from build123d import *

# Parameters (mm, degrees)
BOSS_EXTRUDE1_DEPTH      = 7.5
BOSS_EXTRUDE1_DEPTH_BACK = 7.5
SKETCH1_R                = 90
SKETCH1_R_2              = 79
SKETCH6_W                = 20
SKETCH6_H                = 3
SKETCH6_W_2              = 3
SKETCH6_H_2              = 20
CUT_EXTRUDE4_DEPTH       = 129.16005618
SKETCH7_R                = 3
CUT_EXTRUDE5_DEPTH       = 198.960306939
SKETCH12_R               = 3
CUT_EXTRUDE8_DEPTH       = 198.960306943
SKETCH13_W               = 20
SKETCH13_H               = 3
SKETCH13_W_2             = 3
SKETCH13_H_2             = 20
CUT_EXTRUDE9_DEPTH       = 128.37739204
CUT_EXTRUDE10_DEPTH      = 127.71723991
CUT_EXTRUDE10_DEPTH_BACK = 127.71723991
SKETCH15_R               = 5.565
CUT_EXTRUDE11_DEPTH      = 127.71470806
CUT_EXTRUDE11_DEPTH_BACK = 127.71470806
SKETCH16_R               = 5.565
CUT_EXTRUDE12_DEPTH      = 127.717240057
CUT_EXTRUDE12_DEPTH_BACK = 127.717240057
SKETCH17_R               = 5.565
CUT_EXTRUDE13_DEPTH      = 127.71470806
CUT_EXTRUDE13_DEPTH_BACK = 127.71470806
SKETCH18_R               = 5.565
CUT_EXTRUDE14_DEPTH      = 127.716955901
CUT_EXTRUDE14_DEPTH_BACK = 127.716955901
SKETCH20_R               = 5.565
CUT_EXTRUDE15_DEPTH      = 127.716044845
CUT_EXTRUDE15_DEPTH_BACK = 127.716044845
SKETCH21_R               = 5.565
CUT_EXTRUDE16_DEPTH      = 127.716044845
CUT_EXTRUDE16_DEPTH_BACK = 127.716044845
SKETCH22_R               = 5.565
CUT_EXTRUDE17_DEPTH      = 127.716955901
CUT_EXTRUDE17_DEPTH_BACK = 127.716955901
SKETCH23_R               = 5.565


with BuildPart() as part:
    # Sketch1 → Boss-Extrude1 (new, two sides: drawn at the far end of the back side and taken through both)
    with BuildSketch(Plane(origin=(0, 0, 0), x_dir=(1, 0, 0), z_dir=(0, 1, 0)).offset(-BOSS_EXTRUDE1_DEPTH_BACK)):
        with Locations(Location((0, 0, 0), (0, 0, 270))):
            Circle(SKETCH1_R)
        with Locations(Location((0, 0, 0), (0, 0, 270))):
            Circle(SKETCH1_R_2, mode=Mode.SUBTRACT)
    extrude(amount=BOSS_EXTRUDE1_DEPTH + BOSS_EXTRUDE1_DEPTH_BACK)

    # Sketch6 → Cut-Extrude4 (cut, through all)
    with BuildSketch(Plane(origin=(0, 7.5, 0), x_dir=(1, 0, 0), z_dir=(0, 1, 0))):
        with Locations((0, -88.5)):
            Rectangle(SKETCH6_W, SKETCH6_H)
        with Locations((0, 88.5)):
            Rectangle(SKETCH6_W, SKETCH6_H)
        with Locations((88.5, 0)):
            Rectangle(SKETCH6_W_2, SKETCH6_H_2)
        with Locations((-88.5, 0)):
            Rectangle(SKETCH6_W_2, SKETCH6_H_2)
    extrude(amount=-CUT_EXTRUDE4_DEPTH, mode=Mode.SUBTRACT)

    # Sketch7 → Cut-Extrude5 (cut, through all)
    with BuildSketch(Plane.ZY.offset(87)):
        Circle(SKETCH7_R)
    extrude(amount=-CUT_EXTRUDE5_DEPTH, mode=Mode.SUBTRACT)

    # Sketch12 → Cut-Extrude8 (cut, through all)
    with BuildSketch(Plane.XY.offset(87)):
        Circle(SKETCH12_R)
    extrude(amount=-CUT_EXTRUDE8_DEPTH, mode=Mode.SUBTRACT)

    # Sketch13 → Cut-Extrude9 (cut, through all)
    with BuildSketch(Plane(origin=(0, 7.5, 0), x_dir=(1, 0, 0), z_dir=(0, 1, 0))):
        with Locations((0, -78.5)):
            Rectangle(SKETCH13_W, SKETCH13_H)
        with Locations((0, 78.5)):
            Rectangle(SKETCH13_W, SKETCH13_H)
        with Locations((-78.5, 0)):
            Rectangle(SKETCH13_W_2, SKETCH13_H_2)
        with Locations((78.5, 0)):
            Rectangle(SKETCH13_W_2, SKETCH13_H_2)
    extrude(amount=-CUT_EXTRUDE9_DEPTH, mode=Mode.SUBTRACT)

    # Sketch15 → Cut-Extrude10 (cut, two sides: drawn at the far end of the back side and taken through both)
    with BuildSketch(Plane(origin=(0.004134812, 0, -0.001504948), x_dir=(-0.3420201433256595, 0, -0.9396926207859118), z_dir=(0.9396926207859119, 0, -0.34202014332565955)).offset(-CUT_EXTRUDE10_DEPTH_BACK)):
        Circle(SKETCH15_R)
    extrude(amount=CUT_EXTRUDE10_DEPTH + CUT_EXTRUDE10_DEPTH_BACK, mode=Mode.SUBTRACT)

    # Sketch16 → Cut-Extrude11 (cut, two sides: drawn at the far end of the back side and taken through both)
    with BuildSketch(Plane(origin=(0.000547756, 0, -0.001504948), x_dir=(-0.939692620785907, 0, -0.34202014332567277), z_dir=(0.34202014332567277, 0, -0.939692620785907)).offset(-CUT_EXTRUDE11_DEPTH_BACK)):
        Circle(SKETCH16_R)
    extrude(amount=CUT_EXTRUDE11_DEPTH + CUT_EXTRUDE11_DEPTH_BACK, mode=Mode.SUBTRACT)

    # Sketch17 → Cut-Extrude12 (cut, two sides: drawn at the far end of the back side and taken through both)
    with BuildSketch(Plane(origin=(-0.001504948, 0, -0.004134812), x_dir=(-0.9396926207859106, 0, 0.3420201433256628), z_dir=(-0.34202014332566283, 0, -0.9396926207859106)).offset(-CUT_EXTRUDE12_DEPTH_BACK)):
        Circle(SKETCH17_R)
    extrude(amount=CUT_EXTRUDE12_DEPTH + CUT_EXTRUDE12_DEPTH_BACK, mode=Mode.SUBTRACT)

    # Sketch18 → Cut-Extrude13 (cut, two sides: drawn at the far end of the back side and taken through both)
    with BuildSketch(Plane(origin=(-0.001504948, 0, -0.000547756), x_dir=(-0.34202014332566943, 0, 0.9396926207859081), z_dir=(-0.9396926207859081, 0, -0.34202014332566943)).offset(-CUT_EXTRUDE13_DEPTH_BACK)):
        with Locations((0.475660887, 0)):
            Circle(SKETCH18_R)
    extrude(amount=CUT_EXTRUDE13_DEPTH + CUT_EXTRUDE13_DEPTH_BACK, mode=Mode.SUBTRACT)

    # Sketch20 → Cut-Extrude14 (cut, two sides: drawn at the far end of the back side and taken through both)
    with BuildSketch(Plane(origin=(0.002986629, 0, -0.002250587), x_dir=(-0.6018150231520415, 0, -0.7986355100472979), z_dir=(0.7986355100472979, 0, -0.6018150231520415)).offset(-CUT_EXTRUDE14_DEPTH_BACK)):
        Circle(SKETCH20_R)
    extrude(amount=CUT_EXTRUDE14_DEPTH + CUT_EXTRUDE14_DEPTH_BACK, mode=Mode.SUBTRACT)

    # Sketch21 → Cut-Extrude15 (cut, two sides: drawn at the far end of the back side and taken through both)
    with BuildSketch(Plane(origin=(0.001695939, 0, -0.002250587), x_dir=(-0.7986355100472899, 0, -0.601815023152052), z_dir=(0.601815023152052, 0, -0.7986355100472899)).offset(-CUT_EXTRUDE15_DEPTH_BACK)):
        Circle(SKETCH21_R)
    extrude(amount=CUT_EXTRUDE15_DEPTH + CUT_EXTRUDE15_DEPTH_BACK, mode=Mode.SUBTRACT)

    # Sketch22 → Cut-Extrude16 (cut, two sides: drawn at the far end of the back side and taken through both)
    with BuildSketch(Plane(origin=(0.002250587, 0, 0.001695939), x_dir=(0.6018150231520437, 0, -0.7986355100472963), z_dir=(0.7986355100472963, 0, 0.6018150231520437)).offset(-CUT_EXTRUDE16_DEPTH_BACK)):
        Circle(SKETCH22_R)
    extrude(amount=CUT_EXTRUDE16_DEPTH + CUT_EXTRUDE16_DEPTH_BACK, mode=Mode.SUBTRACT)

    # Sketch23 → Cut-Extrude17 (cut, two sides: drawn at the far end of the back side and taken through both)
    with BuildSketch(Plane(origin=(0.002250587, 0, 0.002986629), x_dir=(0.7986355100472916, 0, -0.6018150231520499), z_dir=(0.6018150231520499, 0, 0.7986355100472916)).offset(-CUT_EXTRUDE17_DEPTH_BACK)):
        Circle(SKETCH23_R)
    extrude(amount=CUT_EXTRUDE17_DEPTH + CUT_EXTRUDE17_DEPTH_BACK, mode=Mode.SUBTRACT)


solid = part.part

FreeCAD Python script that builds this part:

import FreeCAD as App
import Part
import Sketcher

V = App.Vector
Q = App.Units.Quantity

doc = App.newDocument("Part")
body = doc.addObject("PartDesign::Body", "Body")

# Sketch on XZ plane
sketch1 = doc.addObject("Sketcher::SketchObject", "Sketch")
body.addObject(sketch1)
sketch1.AttachmentSupport = (doc.XZ_Plane, [""])
sketch1.MapMode = "FlatFace"
sketch1.addGeometry(Part.Circle(V(0, 0, 0), V(0, 0, 1), 90), False)
sketch1.addGeometry(Part.Circle(V(0, 0, 0), V(0, 0, 1), 79), False)
sketch1.addConstraint(Sketcher.Constraint("Coincident", 0, 3, -1, 1))
sketch1.addConstraint(Sketcher.Constraint("Coincident", 1, 3, -1, 1))
sketch1.addConstraint(Sketcher.Constraint("Diameter", 0, Q("180 mm")))
sketch1.addConstraint(Sketcher.Constraint("Diameter", 1, Q("158 mm")))
pad1 = doc.addObject("PartDesign::Pad", "Pad")
body.addObject(pad1)
pad1.Profile = sketch1
pad1.Type = "TwoLengths"
pad1.Length = 7.5
pad1.Length2 = 7.5
pad1.Reversed = True

# Sketch on XZ plane
sketch2 = doc.addObject("Sketcher::SketchObject", "Sketch001")
body.addObject(sketch2)
sketch2.AttachmentSupport = (doc.XZ_Plane, [""])
sketch2.MapMode = "FlatFace"
sketch2.AttachmentOffset = App.Placement(V(0, 0, -7.5), App.Rotation())
sketch2.addGeometry(Part.LineSegment(V(-10, 87, 0), V(-10, 90, 0)), False)
sketch2.addGeometry(Part.LineSegment(V(-10, 90, 0), V(10, 90, 0)), False)
sketch2.addGeometry(Part.LineSegment(V(10, 90, 0), V(10, 87, 0)), False)
sketch2.addGeometry(Part.LineSegment(V(10, 87, 0), V(-10, 87, 0)), False)
sketch2.addGeometry(Part.LineSegment(V(-10, -90, 0), V(-10, -87, 0)), False)
sketch2.addGeometry(Part.LineSegment(V(-10, -87, 0), V(10, -87, 0)), False)
sketch2.addGeometry(Part.LineSegment(V(10, -87, 0), V(10, -90, 0)), False)
sketch2.addGeometry(Part.LineSegment(V(10, -90, 0), V(-10, -90, 0)), False)
sketch2.addGeometry(Part.LineSegment(V(87, -10, 0), V(87, 10, 0)), False)
sketch2.addGeometry(Part.LineSegment(V(87, 10, 0), V(90, 10, 0)), False)
sketch2.addGeometry(Part.LineSegment(V(90, 10, 0), V(90, -10, 0)), False)
sketch2.addGeometry(Part.LineSegment(V(90, -10, 0), V(87, -10, 0)), False)
sketch2.addGeometry(Part.LineSegment(V(-90, -10, 0), V(-90, 10, 0)), False)
sketch2.addGeometry(Part.LineSegment(V(-90, 10, 0), V(-87, 10, 0)), False)
sketch2.addGeometry(Part.LineSegment(V(-87, 10, 0), V(-87, -10, 0)), False)
sketch2.addGeometry(Part.LineSegment(V(-87, -10, 0), V(-90, -10, 0)), False)
sketch2.addConstraint(Sketcher.Constraint("Coincident", 0, 2, 1, 1))
sketch2.addConstraint(Sketcher.Constraint("Coincident", 1, 2, 2, 1))
sketch2.addConstraint(Sketcher.Constraint("Coincident", 2, 2, 3, 1))
sketch2.addConstraint(Sketcher.Constraint("Coincident", 3, 2, 0, 1))
sketch2.addConstraint(Sketcher.Constraint("Coincident", 4, 2, 5, 1))
sketch2.addConstraint(Sketcher.Constraint("Coincident", 5, 2, 6, 1))
sketch2.addConstraint(Sketcher.Constraint("Coincident", 6, 2, 7, 1))
sketch2.addConstraint(Sketcher.Constraint("Coincident", 7, 2, 4, 1))
sketch2.addConstraint(Sketcher.Constraint("Coincident", 8, 2, 9, 1))
sketch2.addConstraint(Sketcher.Constraint("Coincident", 9, 2, 10, 1))
sketch2.addConstraint(Sketcher.Constraint("Coincident", 10, 2, 11, 1))
sketch2.addConstraint(Sketcher.Constraint("Coincident", 11, 2, 8, 1))
sketch2.addConstraint(Sketcher.Constraint("Coincident", 12, 2, 13, 1))
sketch2.addConstraint(Sketcher.Constraint("Coincident", 13, 2, 14, 1))
sketch2.addConstraint(Sketcher.Constraint("Coincident", 14, 2, 15, 1))
sketch2.addConstraint(Sketcher.Constraint("Coincident", 15, 2, 12, 1))
sketch2.addConstraint(Sketcher.Constraint("Vertical", 0))
sketch2.addConstraint(Sketcher.Constraint("Horizontal", 1))
sketch2.addConstraint(Sketcher.Constraint("Vertical", 2))
sketch2.addConstraint(Sketcher.Constraint("Horizontal", 3))
sketch2.addConstraint(Sketcher.Constraint("Vertical", 4))
sketch2.addConstraint(Sketcher.Constraint("Horizontal", 5))
sketch2.addConstraint(Sketcher.Constraint("Vertical", 6))
sketch2.addConstraint(Sketcher.Constraint("Horizontal", 7))
sketch2.addConstraint(Sketcher.Constraint("Vertical", 8))
sketch2.addConstraint(Sketcher.Constraint("Horizontal", 9))
sketch2.addConstraint(Sketcher.Constraint("Vertical", 10))
sketch2.addConstraint(Sketcher.Constraint("Horizontal", 11))
sketch2.addConstraint(Sketcher.Constraint("Vertical", 12))
sketch2.addConstraint(Sketcher.Constraint("Horizontal", 13))
sketch2.addConstraint(Sketcher.Constraint("Vertical", 14))
sketch2.addConstraint(Sketcher.Constraint("Horizontal", 15))
sketch2.addConstraint(Sketcher.Constraint("Symmetric", 2, 2, 4, 2, -1, 1))
sketch2.addConstraint(Sketcher.Constraint("Symmetric", 0, 2, 6, 2, -1, 1))
sketch2.addConstraint(Sketcher.Constraint("Symmetric", 10, 2, 12, 2, -1, 1))
sketch2.addConstraint(Sketcher.Constraint("Symmetric", 8, 2, 14, 2, -1, 1))
sketch2.addConstraint(Sketcher.Constraint("Horizontal", 9, 2, 12, 2))
sketch2.addConstraint(Sketcher.Constraint("Vertical", 3, 2, 4, 2))
sketch2.addConstraint(Sketcher.Constraint("Equal", 15, 0))
sketch2.addConstraint(Sketcher.Constraint("Equal", 7, 8))
sketch2.addConstraint(Sketcher.Constraint("DistanceX", 1, 1, 1, 2, Q("20 mm")))
sketch2.addConstraint(Sketcher.Constraint("DistanceX", 9, 1, 9, 2, Q("3 mm")))
sketch2.addConstraint(Sketcher.Constraint("DistanceY", -1, 1, 0, 2, Q("90 mm")))
sketch2.addConstraint(Sketcher.Constraint("DistanceX", -1, 1, 8, 2, Q("87 mm")))
pocket1 = doc.addObject("PartDesign::Pocket", "Pocket")
body.addObject(pocket1)
pocket1.Profile = sketch2
pocket1.Type = "ThroughAll"
pocket1.Reversed = True

# Sketch on YZ plane
sketch3 = doc.addObject("Sketcher::SketchObject", "Sketch002")
body.addObject(sketch3)
sketch3.AttachmentSupport = (doc.YZ_Plane, [""])
sketch3.MapMode = "FlatFace"
sketch3.AttachmentOffset = App.Placement(V(0, 0, -87), App.Rotation())
sketch3.addGeometry(Part.Circle(V(0, 0, 0), V(0, 0, 1), 3), False)
sketch3.addConstraint(Sketcher.Constraint("Coincident", 0, 3, -1, 1))
sketch3.addConstraint(Sketcher.Constraint("Diameter", 0, Q("6 mm")))
pocket2 = doc.addObject("PartDesign::Pocket", "Pocket001")
body.addObject(pocket2)
pocket2.Profile = sketch3
pocket2.Type = "ThroughAll"
pocket2.Reversed = True

# Sketch on XY plane
sketch4 = doc.addObject("Sketcher::SketchObject", "Sketch003")
body.addObject(sketch4)
sketch4.AttachmentSupport = (doc.XY_Plane, [""])
sketch4.MapMode = "FlatFace"
sketch4.AttachmentOffset = App.Placement(V(0, 0, 87), App.Rotation())
sketch4.addGeometry(Part.Circle(V(0, 0, 0), V(0, 0, 1), 3), False)
sketch4.addConstraint(Sketcher.Constraint("Coincident", 0, 3, -1, 1))
sketch4.addConstraint(Sketcher.Constraint("Diameter", 0, Q("6 mm")))
pocket3 = doc.addObject("PartDesign::Pocket", "Pocket002")
body.addObject(pocket3)
pocket3.Profile = sketch4
pocket3.Type = "ThroughAll"

# Sketch on XZ plane
sketch5 = doc.addObject("Sketcher::SketchObject", "Sketch004")
body.addObject(sketch5)
sketch5.AttachmentSupport = (doc.XZ_Plane, [""])
sketch5.MapMode = "FlatFace"
sketch5.AttachmentOffset = App.Placement(V(0, 0, -7.5), App.Rotation())
sketch5.addGeometry(Part.LineSegment(V(-10, 77, 0), V(-10, 80, 0)), False)
sketch5.addGeometry(Part.LineSegment(V(-10, 80, 0), V(10, 80, 0)), False)
sketch5.addGeometry(Part.LineSegment(V(10, 80, 0), V(10, 77, 0)), False)
sketch5.addGeometry(Part.LineSegment(V(10, 77, 0), V(-10, 77, 0)), False)
sketch5.addGeometry(Part.LineSegment(V(-10, -80, 0), V(-10, -77, 0)), False)
sketch5.addGeometry(Part.LineSegment(V(-10, -77, 0), V(10, -77, 0)), False)
sketch5.addGeometry(Part.LineSegment(V(10, -77, 0), V(10, -80, 0)), False)
sketch5.addGeometry(Part.LineSegment(V(10, -80, 0), V(-10, -80, 0)), False)
sketch5.addGeometry(Part.LineSegment(V(-80, -10, 0), V(-80, 10, 0)), False)
sketch5.addGeometry(Part.LineSegment(V(-80, 10, 0), V(-77, 10, 0)), False)
sketch5.addGeometry(Part.LineSegment(V(-77, 10, 0), V(-77, -10, 0)), False)
sketch5.addGeometry(Part.LineSegment(V(-77, -10, 0), V(-80, -10, 0)), False)
sketch5.addGeometry(Part.LineSegment(V(77, -10, 0), V(77, 10, 0)), False)
sketch5.addGeometry(Part.LineSegment(V(77, 10, 0), V(80, 10, 0)), False)
sketch5.addGeometry(Part.LineSegment(V(80, 10, 0), V(80, -10, 0)), False)
sketch5.addGeometry(Part.LineSegment(V(80, -10, 0), V(77, -10, 0)), False)
sketch5.addConstraint(Sketcher.Constraint("Coincident", 0, 2, 1, 1))
sketch5.addConstraint(Sketcher.Constraint("Coincident", 1, 2, 2, 1))
sketch5.addConstraint(Sketcher.Constraint("Coincident", 2, 2, 3, 1))
sketch5.addConstraint(Sketcher.Constraint("Coincident", 3, 2, 0, 1))
sketch5.addConstraint(Sketcher.Constraint("Coincident", 4, 2, 5, 1))
sketch5.addConstraint(Sketcher.Constraint("Coincident", 5, 2, 6, 1))
sketch5.addConstraint(Sketcher.Constraint("Coincident", 6, 2, 7, 1))
sketch5.addConstraint(Sketcher.Constraint("Coincident", 7, 2, 4, 1))
sketch5.addConstraint(Sketcher.Constraint("Coincident", 8, 2, 9, 1))
sketch5.addConstraint(Sketcher.Constraint("Coincident", 9, 2, 10, 1))
sketch5.addConstraint(Sketcher.Constraint("Coincident", 10, 2, 11, 1))
sketch5.addConstraint(Sketcher.Constraint("Coincident", 11, 2, 8, 1))
sketch5.addConstraint(Sketcher.Constraint("Coincident", 12, 2, 13, 1))
sketch5.addConstraint(Sketcher.Constraint("Coincident", 13, 2, 14, 1))
sketch5.addConstraint(Sketcher.Constraint("Coincident", 14, 2, 15, 1))
sketch5.addConstraint(Sketcher.Constraint("Coincident", 15, 2, 12, 1))
sketch5.addConstraint(Sketcher.Constraint("Vertical", 0))
sketch5.addConstraint(Sketcher.Constraint("Horizontal", 1))
sketch5.addConstraint(Sketcher.Constraint("Vertical", 2))
sketch5.addConstraint(Sketcher.Constraint("Horizontal", 3))
sketch5.addConstraint(Sketcher.Constraint("Vertical", 4))
sketch5.addConstraint(Sketcher.Constraint("Horizontal", 5))
sketch5.addConstraint(Sketcher.Constraint("Vertical", 6))
sketch5.addConstraint(Sketcher.Constraint("Horizontal", 7))
sketch5.addConstraint(Sketcher.Constraint("Vertical", 8))
sketch5.addConstraint(Sketcher.Constraint("Horizontal", 9))
sketch5.addConstraint(Sketcher.Constraint("Vertical", 10))
sketch5.addConstraint(Sketcher.Constraint("Horizontal", 11))
sketch5.addConstraint(Sketcher.Constraint("Vertical", 12))
sketch5.addConstraint(Sketcher.Constraint("Horizontal", 13))
sketch5.addConstraint(Sketcher.Constraint("Vertical", 14))
sketch5.addConstraint(Sketcher.Constraint("Horizontal", 15))
sketch5.addConstraint(Sketcher.Constraint("Symmetric", 2, 2, 4, 2, -1, 1))
sketch5.addConstraint(Sketcher.Constraint("Symmetric", 0, 2, 6, 2, -1, 1))
sketch5.addConstraint(Sketcher.Constraint("Symmetric", 10, 2, 12, 2, -1, 1))
sketch5.addConstraint(Sketcher.Constraint("Symmetric", 8, 2, 14, 2, -1, 1))
sketch5.addConstraint(Sketcher.Constraint("Horizontal", 9, 2, 12, 2))
sketch5.addConstraint(Sketcher.Constraint("Vertical", 3, 2, 4, 2))
sketch5.addConstraint(Sketcher.Constraint("Equal", 15, 0))
sketch5.addConstraint(Sketcher.Constraint("Equal", 7, 8))
sketch5.addConstraint(Sketcher.Constraint("DistanceX", 1, 1, 1, 2, Q("20 mm")))
sketch5.addConstraint(Sketcher.Constraint("DistanceX", 9, 1, 9, 2, Q("3 mm")))
sketch5.addConstraint(Sketcher.Constraint("DistanceY", -1, 1, 0, 2, Q("80 mm")))
sketch5.addConstraint(Sketcher.Constraint("DistanceX", 8, 2, -1, 1, Q("80 mm")))
pocket4 = doc.addObject("PartDesign::Pocket", "Pocket003")
body.addObject(pocket4)
pocket4.Profile = sketch5
pocket4.Type = "ThroughAll"
pocket4.Reversed = True

# Sketch on an angled plane
sketch6 = doc.addObject("Sketcher::SketchObject", "Sketch005")
body.addObject(sketch6)
sketch6.Placement = App.Placement(V(0.004135, 0, -0.001505), App.Rotation(V(-0.342020143, 0, -0.939692621), V(0, 1, 0), V(0.939692621, 0, -0.342020143), "ZXY"))
sketch6.addGeometry(Part.Circle(V(0, 0, 0), V(0, 0, 1), 5.565), False)
sketch6.addConstraint(Sketcher.Constraint("Coincident", 0, 3, -1, 1))
sketch6.addConstraint(Sketcher.Constraint("Diameter", 0, Q("11.13 mm")))
pocket5 = doc.addObject("PartDesign::Pocket", "Pocket004")
body.addObject(pocket5)
pocket5.Profile = sketch6
pocket5.Type = "ThroughAll"
pocket5.Midplane = True

# Sketch on an angled plane
sketch7 = doc.addObject("Sketcher::SketchObject", "Sketch006")
body.addObject(sketch7)
sketch7.Placement = App.Placement(V(0.000548, 0, -0.001505), App.Rotation(V(-0.939692621, 0, -0.342020143), V(0, 1, 0), V(0.342020143, 0, -0.939692621), "ZXY"))
sketch7.addGeometry(Part.Circle(V(0, 0, 0), V(0, 0, 1), 5.565), False)
sketch7.addConstraint(Sketcher.Constraint("Coincident", 0, 3, -1, 1))
sketch7.addConstraint(Sketcher.Constraint("Diameter", 0, Q("11.13 mm")))
pocket6 = doc.addObject("PartDesign::Pocket", "Pocket005")
body.addObject(pocket6)
pocket6.Profile = sketch7
pocket6.Type = "ThroughAll"
pocket6.Midplane = True

# Sketch on an angled plane
sketch8 = doc.addObject("Sketcher::SketchObject", "Sketch007")
body.addObject(sketch8)
sketch8.Placement = App.Placement(V(-0.001505, 0, -0.004135), App.Rotation(V(-0.939692621, 0, 0.342020143), V(0, 1, 0), V(-0.342020143, 0, -0.939692621), "ZXY"))
sketch8.addGeometry(Part.Circle(V(0, 0, 0), V(0, 0, 1), 5.565), False)
sketch8.addConstraint(Sketcher.Constraint("Coincident", 0, 3, -1, 1))
sketch8.addConstraint(Sketcher.Constraint("Diameter", 0, Q("11.13 mm")))
pocket7 = doc.addObject("PartDesign::Pocket", "Pocket006")
body.addObject(pocket7)
pocket7.Profile = sketch8
pocket7.Type = "ThroughAll"
pocket7.Midplane = True

# Sketch on an angled plane
sketch9 = doc.addObject("Sketcher::SketchObject", "Sketch008")
body.addObject(sketch9)
sketch9.Placement = App.Placement(V(-0.001505, 0, -0.000548), App.Rotation(V(-0.342020143, 0, 0.939692621), V(0, 1, 0), V(-0.939692621, 0, -0.342020143), "ZXY"))
sketch9.addGeometry(Part.Circle(V(0.475661, 0, 0), V(0, 0, 1), 5.565), False)
sketch9.addConstraint(Sketcher.Constraint("PointOnObject", 0, 3, -1))
sketch9.addConstraint(Sketcher.Constraint("Diameter", 0, Q("11.13 mm")))
sketch9.addConstraint(Sketcher.Constraint("DistanceX", -1, 1, 0, 3, Q("0.475661 mm")))
pocket8 = doc.addObject("PartDesign::Pocket", "Pocket007")
body.addObject(pocket8)
pocket8.Profile = sketch9
pocket8.Type = "ThroughAll"
pocket8.Midplane = True

# Sketch on an angled plane
sketch10 = doc.addObject("Sketcher::SketchObject", "Sketch009")
body.addObject(sketch10)
sketch10.Placement = App.Placement(V(0.002987, 0, -0.002251), App.Rotation(V(-0.601815023, 0, -0.79863551), V(0, 1, 0), V(0.79863551, 0, -0.601815023), "ZXY"))
sketch10.addGeometry(Part.Circle(V(0, 0, 0), V(0, 0, 1), 5.565), False)
sketch10.addConstraint(Sketcher.Constraint("Coincident", 0, 3, -1, 1))
sketch10.addConstraint(Sketcher.Constraint("Diameter", 0, Q("11.13 mm")))
pocket9 = doc.addObject("PartDesign::Pocket", "Pocket008")
body.addObject(pocket9)
pocket9.Profile = sketch10
pocket9.Type = "ThroughAll"
pocket9.Midplane = True

# Sketch on an angled plane
sketch11 = doc.addObject("Sketcher::SketchObject", "Sketch010")
body.addObject(sketch11)
sketch11.Placement = App.Placement(V(0.001696, 0, -0.002251), App.Rotation(V(-0.79863551, 0, -0.601815023), V(0, 1, 0), V(0.601815023, 0, -0.79863551), "ZXY"))
sketch11.addGeometry(Part.Circle(V(0, 0, 0), V(0, 0, 1), 5.565), False)
sketch11.addConstraint(Sketcher.Constraint("Coincident", 0, 3, -1, 1))
sketch11.addConstraint(Sketcher.Constraint("Diameter", 0, Q("11.13 mm")))
pocket10 = doc.addObject("PartDesign::Pocket", "Pocket009")
body.addObject(pocket10)
pocket10.Profile = sketch11
pocket10.Type = "ThroughAll"
pocket10.Midplane = True

# Sketch on an angled plane
sketch12 = doc.addObject("Sketcher::SketchObject", "Sketch011")
body.addObject(sketch12)
sketch12.Placement = App.Placement(V(0.002251, 0, 0.001696), App.Rotation(V(0.601815023, 0, -0.79863551), V(0, 1, 0), V(0.79863551, 0, 0.601815023), "ZXY"))
sketch12.addGeometry(Part.Circle(V(0, 0, 0), V(0, 0, 1), 5.565), False)
sketch12.addConstraint(Sketcher.Constraint("Coincident", 0, 3, -1, 1))
sketch12.addConstraint(Sketcher.Constraint("Diameter", 0, Q("11.13 mm")))
pocket11 = doc.addObject("PartDesign::Pocket", "Pocket010")
body.addObject(pocket11)
pocket11.Profile = sketch12
pocket11.Type = "ThroughAll"
pocket11.Midplane = True

# Sketch on an angled plane
sketch13 = doc.addObject("Sketcher::SketchObject", "Sketch012")
body.addObject(sketch13)
sketch13.Placement = App.Placement(V(0.002251, 0, 0.002987), App.Rotation(V(0.79863551, 0, -0.601815023), V(0, 1, 0), V(0.601815023, 0, 0.79863551), "ZXY"))
sketch13.addGeometry(Part.Circle(V(0, 0, 0), V(0, 0, 1), 5.565), False)
sketch13.addConstraint(Sketcher.Constraint("Coincident", 0, 3, -1, 1))
sketch13.addConstraint(Sketcher.Constraint("Diameter", 0, Q("11.13 mm")))
pocket12 = doc.addObject("PartDesign::Pocket", "Pocket011")
body.addObject(pocket12)
pocket12.Profile = sketch13
pocket12.Type = "ThroughAll"
pocket12.Midplane = True

doc.recompute()
